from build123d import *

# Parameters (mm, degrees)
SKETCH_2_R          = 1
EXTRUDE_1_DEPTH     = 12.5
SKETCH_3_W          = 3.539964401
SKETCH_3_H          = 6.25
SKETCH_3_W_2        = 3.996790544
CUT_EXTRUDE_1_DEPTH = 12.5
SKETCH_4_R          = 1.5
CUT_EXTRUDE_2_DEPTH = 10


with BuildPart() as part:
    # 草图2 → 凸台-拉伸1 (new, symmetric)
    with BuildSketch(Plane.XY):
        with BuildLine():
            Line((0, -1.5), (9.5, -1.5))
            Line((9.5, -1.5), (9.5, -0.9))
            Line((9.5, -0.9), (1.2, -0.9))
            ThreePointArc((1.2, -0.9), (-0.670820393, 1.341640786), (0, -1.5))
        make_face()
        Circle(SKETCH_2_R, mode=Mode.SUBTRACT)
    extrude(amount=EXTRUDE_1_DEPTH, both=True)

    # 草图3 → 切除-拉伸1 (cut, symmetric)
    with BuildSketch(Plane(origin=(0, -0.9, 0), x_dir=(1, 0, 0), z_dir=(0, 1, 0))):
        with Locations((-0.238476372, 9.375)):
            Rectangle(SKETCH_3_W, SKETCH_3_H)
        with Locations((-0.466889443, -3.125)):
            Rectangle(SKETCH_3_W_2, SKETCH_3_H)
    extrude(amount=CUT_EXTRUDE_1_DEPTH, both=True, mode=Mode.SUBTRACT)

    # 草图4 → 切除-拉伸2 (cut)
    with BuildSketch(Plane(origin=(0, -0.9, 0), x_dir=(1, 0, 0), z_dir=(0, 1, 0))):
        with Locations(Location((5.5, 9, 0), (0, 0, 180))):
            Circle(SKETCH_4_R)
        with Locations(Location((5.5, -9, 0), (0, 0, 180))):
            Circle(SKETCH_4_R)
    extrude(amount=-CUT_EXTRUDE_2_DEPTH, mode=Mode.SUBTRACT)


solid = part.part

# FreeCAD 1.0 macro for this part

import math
import FreeCAD as App
import Part
import Sketcher
Q = App.Units.Quantity

doc = App.newDocument("Part")
body = doc.addObject("PartDesign::Body", "Body")

# Sketch on XY plane
sketch1 = body.newObject("Sketcher::SketchObject", "Sketch")
sketch1.AttachmentSupport = (doc.getObject("XY_Plane"), [""])
sketch1.MapMode = "FlatFace"
sketch1.addGeometry(Part.LineSegment(App.Vector(0, -1.5, 0), App.Vector(9.5, -1.5, 0)), False)
sketch1.addGeometry(Part.LineSegment(App.Vector(9.5, -1.5, 0), App.Vector(9.5, -0.9, 0)), False)
sketch1.addGeometry(Part.LineSegment(App.Vector(9.5, -0.9, 0), App.Vector(1.2, -0.9, 0)), False)
sketch1.addGeometry(Part.ArcOfCircle(Part.Circle(App.Vector(0, 0, 0), App.Vector(0, 0, 1), 1.5), math.radians(-37), math.radians(270)), False)
sketch1.addGeometry(Part.Circle(App.Vector(0, 0, 0), App.Vector(0, 0, 1), 1), False)
sketch1.addConstraint(Sketcher.Constraint("Coincident", 0, 2, 1, 1))
sketch1.addConstraint(Sketcher.Constraint("Coincident", 1, 2, 2, 1))
sketch1.addConstraint(Sketcher.Constraint("Coincident", 2, 2, 3, 1))
sketch1.addConstraint(Sketcher.Constraint("Tangent", 3, 2, 0, 1))
sketch1.addConstraint(Sketcher.Constraint("Horizontal", 0))
sketch1.addConstraint(Sketcher.Constraint("Vertical", 1))
sketch1.addConstraint(Sketcher.Constraint("Horizontal", 2))
sketch1.addConstraint(Sketcher.Constraint("Coincident", 3, 3, -1, 1))
sketch1.addConstraint(Sketcher.Constraint("Coincident", 4, 3, -1, 1))
sketch1.addConstraint(Sketcher.Constraint("Diameter", 4, Q("2 mm")))
sketch1.addConstraint(Sketcher.Constraint("Radius", 3, Q("1.5 mm")))
sketch1.addConstraint(Sketcher.Constraint("DistanceX", 0, 1, 0, 2, Q("9.5 mm")))
sketch1.addConstraint(Sketcher.Constraint("DistanceX", 2, 2, 2, 1, Q("8.3 mm")))
pad1 = body.newObject("PartDesign::Pad", "Pad")
pad1.Profile = sketch1
pad1.Length = 25
pad1.Midplane = True

# Sketch on XZ plane
sketch2 = body.newObject("Sketcher::SketchObject", "Sketch001")
sketch2.AttachmentSupport = (doc.getObject("XZ_Plane"), [""])
sketch2.MapMode = "FlatFace"
sketch2.AttachmentOffset = App.Placement(App.Vector(0, 0, 0.9), App.Rotation())
sketch2.addGeometry(Part.LineSegment(App.Vector(-2, -12.5, 0), App.Vector(-2, -6.2, 0)), False)
sketch2.addGeometry(Part.LineSegment(App.Vector(-2, -6.2, 0), App.Vector(1.5, -6.2, 0)), False)
sketch2.addGeometry(Part.LineSegment(App.Vector(1.5, -6.2, 0), App.Vector(1.5, -12.5, 0)), False)
sketch2.addGeometry(Part.LineSegment(App.Vector(1.5, -12.5, 0), App.Vector(-2, -12.5, 0)), False)
sketch2.addGeometry(Part.LineSegment(App.Vector(-2.5, 0, 0), App.Vector(-2.5, 6.2, 0)), False)
sketch2.addGeometry(Part.LineSegment(App.Vector(-2.5, 6.2, 0), App.Vector(1.5, 6.2, 0)), False)
sketch2.addGeometry(Part.LineSegment(App.Vector(1.5, 6.2, 0), App.Vector(1.5, 0, 0)), False)
sketch2.addGeometry(Part.LineSegment(App.Vector(1.5, 0, 0), App.Vector(-2.5, 0, 0)), False)
sketch2.addConstraint(Sketcher.Constraint("Coincident", 0, 2, 1, 1))
sketch2.addConstraint(Sketcher.Constraint("Coincident", 1, 2, 2, 1))
sketch2.addConstraint(Sketcher.Constraint("Coincident", 2, 2, 3, 1))
sketch2.addConstraint(Sketcher.Constraint("Coincident", 3, 2, 0, 1))
sketch2.addConstraint(Sketcher.Constraint("Coincident", 4, 2, 5, 1))
sketch2.addConstraint(Sketcher.Constraint("Coincident", 5, 2, 6, 1))
sketch2.addConstraint(Sketcher.Constraint("Coincident", 6, 2, 7, 1))
sketch2.addConstraint(Sketcher.Constraint("Coincident", 7, 2, 4, 1))
sketch2.addConstraint(Sketcher.Constraint("Vertical", 0))
sketch2.addConstraint(Sketcher.Constraint("Horizontal", 1))
sketch2.addConstraint(Sketcher.Constraint("Vertical", 2))
sketch2.addConstraint(Sketcher.Constraint("Horizontal", 3))
sketch2.addConstraint(Sketcher.Constraint("Vertical", 4))
sketch2.addConstraint(Sketcher.Constraint("Horizontal", 5))
sketch2.addConstraint(Sketcher.Constraint("Vertical", 6))
sketch2.addConstraint(Sketcher.Constraint("Horizontal", 7))
sketch2.addConstraint(Sketcher.Constraint("Symmetric", 1, 2, 5, 2, -1))
sketch2.addConstraint(Sketcher.Constraint("PointOnObject", 6, 2, -1))
sketch2.addConstraint(Sketcher.Constraint("Equal", 2, 4))
sketch2.addConstraint(Sketcher.Constraint("DistanceY", 0, 1, 0, 2, Q("6.25 mm")))
sketch2.addConstraint(Sketcher.Constraint("DistanceX", 5, 1, 5, 2, Q("3.996791 mm")))
sketch2.addConstraint(Sketcher.Constraint("DistanceX", 1, 1, 1, 2, Q("3.539964 mm")))
sketch2.addConstraint(Sketcher.Constraint("DistanceX", 0, 2, -1, 1, Q("2.008459 mm")))
pocket1 = body.newObject("PartDesign::Pocket", "Pocket")
pocket1.Profile = sketch2
pocket1.Length = 25
pocket1.Midplane = True

# Sketch on XZ plane
sketch3 = body.newObject("Sketcher::SketchObject", "Sketch002")
sketch3.AttachmentSupport = (doc.getObject("XZ_Plane"), [""])
sketch3.MapMode = "FlatFace"
sketch3.AttachmentOffset = App.Placement(App.Vector(0, 0, 0.9), App.Rotation())
sketch3.addGeometry(Part.Circle(App.Vector(5.5, -9, 0), App.Vector(0, 0, 1), 1.5), False)
sketch3.addGeometry(Part.Circle(App.Vector(5.5, 9, 0), App.Vector(0, 0, 1), 1.5), False)
sketch3.addConstraint(Sketcher.Constraint("Equal", 0, 1))
sketch3.addConstraint(Sketcher.Constraint("Symmetric", 0, 3, 1, 3, -1))
sketch3.addConstraint(Sketcher.Constraint("Diameter", 0, Q("3 mm")))
sketch3.addConstraint(Sketcher.Constraint("DistanceY", 0, 3, -1, 1, Q("9 mm")))
sketch3.addConstraint(Sketcher.Constraint("DistanceX", -1, 1, 0, 3, Q("5.5 mm")))
pocket2 = body.newObject("PartDesign::Pocket", "Pocket001")
pocket2.Profile = sketch3
pocket2.Length = 10
pocket2.Reversed = True

doc.recompute()
